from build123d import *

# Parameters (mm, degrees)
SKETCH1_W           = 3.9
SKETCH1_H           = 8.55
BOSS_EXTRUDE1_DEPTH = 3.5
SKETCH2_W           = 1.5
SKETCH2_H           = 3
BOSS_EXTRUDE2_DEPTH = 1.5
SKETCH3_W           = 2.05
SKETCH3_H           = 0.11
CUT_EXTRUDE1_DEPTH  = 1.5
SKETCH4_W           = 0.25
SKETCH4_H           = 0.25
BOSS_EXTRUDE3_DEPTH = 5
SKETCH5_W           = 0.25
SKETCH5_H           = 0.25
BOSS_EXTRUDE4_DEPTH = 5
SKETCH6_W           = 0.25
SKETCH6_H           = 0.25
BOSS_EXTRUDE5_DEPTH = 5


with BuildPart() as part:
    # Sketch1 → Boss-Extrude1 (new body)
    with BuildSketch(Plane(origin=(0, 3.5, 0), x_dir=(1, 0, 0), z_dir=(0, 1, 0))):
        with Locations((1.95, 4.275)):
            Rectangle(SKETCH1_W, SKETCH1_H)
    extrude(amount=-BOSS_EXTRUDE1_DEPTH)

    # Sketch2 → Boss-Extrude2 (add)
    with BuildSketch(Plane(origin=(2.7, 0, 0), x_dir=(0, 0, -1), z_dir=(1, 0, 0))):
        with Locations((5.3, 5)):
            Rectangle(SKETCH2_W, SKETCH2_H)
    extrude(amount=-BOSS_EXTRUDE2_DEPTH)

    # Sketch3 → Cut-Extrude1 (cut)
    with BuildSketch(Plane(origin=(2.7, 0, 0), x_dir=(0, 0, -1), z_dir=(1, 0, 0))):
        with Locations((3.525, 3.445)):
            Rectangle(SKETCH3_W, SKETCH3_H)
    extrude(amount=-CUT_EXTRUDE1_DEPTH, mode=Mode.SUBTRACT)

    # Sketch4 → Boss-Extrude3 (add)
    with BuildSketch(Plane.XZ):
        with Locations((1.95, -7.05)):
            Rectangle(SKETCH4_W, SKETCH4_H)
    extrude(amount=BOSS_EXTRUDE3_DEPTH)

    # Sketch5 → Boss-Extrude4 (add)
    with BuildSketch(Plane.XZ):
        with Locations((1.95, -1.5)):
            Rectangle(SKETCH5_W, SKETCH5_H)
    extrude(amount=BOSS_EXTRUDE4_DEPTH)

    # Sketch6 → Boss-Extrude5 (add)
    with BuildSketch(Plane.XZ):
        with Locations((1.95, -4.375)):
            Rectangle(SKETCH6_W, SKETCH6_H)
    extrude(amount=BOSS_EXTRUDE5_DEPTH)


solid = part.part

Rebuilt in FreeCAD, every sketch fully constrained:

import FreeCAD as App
import Part
import Sketcher
from FreeCAD import Vector


def add_polygon(sketch, points):
    """Adds a closed chain of lines whose ends are joined by coincident constraints."""
    first, n = sketch.GeometryCount, len(points)
    for a, b in zip(points, points[1:] + points[:1]):
        sketch.addGeometry(Part.LineSegment(App.Vector(*a, 0), App.Vector(*b, 0)), False)
    for i in range(n):
        sketch.addConstraint(Sketcher.Constraint("Coincident", first + i, 2, first + (i + 1) % n, 1))

doc = App.newDocument("Part")
params = doc.addObject("Spreadsheet::Sheet", "Params")
for row, (alias, value) in enumerate([
    ("sketch1_width", "3.9 mm"),
    ("sketch1_height", "8.55 mm"),
    ("pad1_length", "3.5 mm"),
    ("sketch2_width", "3 mm"),
    ("sketch2_height", "1.5 mm"),
    ("pad2_length", "1.5 mm"),
    ("sketch3_width", "0.11 mm"),
    ("sketch3_height", "2.05 mm"),
    ("pocket1_length", "1.5 mm"),
    ("sketch4_width", "0.25 mm"),
    ("pad3_length", "5 mm"),
    ("sketch5_width", "0.25 mm"),
    ("pad4_length", "5 mm"),
    ("sketch6_width", "0.25 mm"),
    ("pad5_length", "5 mm"),
], start=1):
    params.set(f"A{row}", alias)
    params.set(f"B{row}", "=" + value)
    params.setAlias(f"B{row}", alias)

body = doc.addObject("PartDesign::Body", "Body")

# Sketch on XZ plane
sketch1 = body.newObject("Sketcher::SketchObject", "Sketch")
sketch1.AttachmentSupport = (doc.getObject("XZ_Plane"), [""])
sketch1.MapMode = "FlatFace"
sketch1.AttachmentOffset = App.Placement(Vector(0, 0, -3.5), App.Rotation())
add_polygon(sketch1, [(0, -8.55), (0, 0), (3.9, 0), (3.9, -8.55)])  # lines 0-3
sketch1.addConstraint(Sketcher.Constraint("Vertical", 0))
sketch1.addConstraint(Sketcher.Constraint("Horizontal", 1))
sketch1.addConstraint(Sketcher.Constraint("Vertical", 2))
sketch1.addConstraint(Sketcher.Constraint("Horizontal", 3))
sketch1.addConstraint(Sketcher.Constraint("Coincident", 0, 2, -1, 1))
sketch1.addConstraint(Sketcher.Constraint("DistanceX", 1, 1, 1, 2, 3.9))
sketch1.addConstraint(Sketcher.Constraint("DistanceY", 0, 1, 0, 2, 8.55))
sketch1.setExpression("Constraints[9]", "Params.sketch1_width")
sketch1.setExpression("Constraints[10]", "Params.sketch1_height")
pad1 = body.newObject("PartDesign::Pad", "Pad")
pad1.Profile = sketch1
pad1.setExpression("Length", "Params.pad1_length")

# Sketch on YZ plane
sketch2 = body.newObject("Sketcher::SketchObject", "Sketch001")
sketch2.AttachmentSupport = (doc.getObject("YZ_Plane"), [""])
sketch2.MapMode = "FlatFace"
sketch2.AttachmentOffset = App.Placement(Vector(0, 0, 2.7), App.Rotation())
add_polygon(sketch2, [(6.5, -4.55), (3.5, -4.55), (3.5, -6.05), (6.5, -6.05)])  # lines 0-3
sketch2.addConstraint(Sketcher.Constraint("Horizontal", 0))
sketch2.addConstraint(Sketcher.Constraint("Vertical", 1))
sketch2.addConstraint(Sketcher.Constraint("Horizontal", 2))
sketch2.addConstraint(Sketcher.Constraint("Vertical", 3))
sketch2.addConstraint(Sketcher.Constraint("DistanceX", 0, 2, 0, 1, 3.0))
sketch2.addConstraint(Sketcher.Constraint("DistanceY", 1, 2, 1, 1, 1.5))
sketch2.addConstraint(Sketcher.Constraint("DistanceX", -1, 1, 0, 2, 3.5))
sketch2.addConstraint(Sketcher.Constraint("DistanceY", 0, 2, -1, 1, 4.55))
sketch2.setExpression("Constraints[8]", "Params.sketch2_width")
sketch2.setExpression("Constraints[9]", "Params.sketch2_height")
pad2 = body.newObject("PartDesign::Pad", "Pad001")
pad2.Profile = sketch2
pad2.setExpression("Length", "Params.pad2_length")
pad2.Reversed = True

# Sketch on YZ plane
sketch3 = body.newObject("Sketcher::SketchObject", "Sketch002")
sketch3.AttachmentSupport = (doc.getObject("YZ_Plane"), [""])
sketch3.MapMode = "FlatFace"
sketch3.AttachmentOffset = App.Placement(Vector(0, 0, 2.7), App.Rotation())
add_polygon(sketch3, [(3.5, -2.5), (3.39, -2.5), (3.39, -4.55), (3.5, -4.55)])  # lines 0-3
sketch3.addConstraint(Sketcher.Constraint("Horizontal", 0))
sketch3.addConstraint(Sketcher.Constraint("Vertical", 1))
sketch3.addConstraint(Sketcher.Constraint("Horizontal", 2))
sketch3.addConstraint(Sketcher.Constraint("Vertical", 3))
sketch3.addConstraint(Sketcher.Constraint("DistanceX", 0, 2, 0, 1, 0.11))
sketch3.addConstraint(Sketcher.Constraint("DistanceY", 1, 2, 1, 1, 2.05))
sketch3.addConstraint(Sketcher.Constraint("DistanceY", 0, 2, -1, 1, 2.5))
sketch3.addConstraint(Sketcher.Constraint("DistanceX", -1, 1, 2, 2, 3.5))
sketch3.setExpression("Constraints[8]", "Params.sketch3_width")
sketch3.setExpression("Constraints[9]", "Params.sketch3_height")
pocket1 = body.newObject("PartDesign::Pocket", "Pocket")
pocket1.Profile = sketch3
pocket1.setExpression("Length", "Params.pocket1_length")

# Sketch on XZ plane
sketch4 = body.newObject("Sketcher::SketchObject", "Sketch003")
sketch4.AttachmentSupport = (doc.getObject("XZ_Plane"), [""])
sketch4.MapMode = "FlatFace"
add_polygon(sketch4, [(1.825, -6.925), (1.825, -7.175), (2.075, -7.175), (2.075, -6.925)])  # lines 0-3
sketch4.addConstraint(Sketcher.Constraint("Vertical", 0))
sketch4.addConstraint(Sketcher.Constraint("Horizontal", 1))
sketch4.addConstraint(Sketcher.Constraint("Vertical", 2))
sketch4.addConstraint(Sketcher.Constraint("Horizontal", 3))
sketch4.addConstraint(Sketcher.Constraint("Equal", 3, 0))
sketch4.addConstraint(Sketcher.Constraint("DistanceX", 1, 1, 1, 2, 0.25))
sketch4.addConstraint(Sketcher.Constraint("DistanceX", -1, 1, 0, 2, 1.825))
sketch4.addConstraint(Sketcher.Constraint("DistanceY", 0, 2, -1, 1, 7.175))
sketch4.setExpression("Constraints[9]", "Params.sketch4_width")
pad3 = body.newObject("PartDesign::Pad", "Pad002")
pad3.Profile = sketch4
pad3.setExpression("Length", "Params.pad3_length")

# Sketch on XZ plane
sketch5 = body.newObject("Sketcher::SketchObject", "Sketch004")
sketch5.AttachmentSupport = (doc.getObject("XZ_Plane"), [""])
sketch5.MapMode = "FlatFace"
add_polygon(sketch5, [(1.825, -1.375), (1.825, -1.625), (2.075, -1.625), (2.075, -1.375)])  # lines 0-3
sketch5.addConstraint(Sketcher.Constraint("Vertical", 0))
sketch5.addConstraint(Sketcher.Constraint("Horizontal", 1))
sketch5.addConstraint(Sketcher.Constraint("Vertical", 2))
sketch5.addConstraint(Sketcher.Constraint("Horizontal", 3))
sketch5.addConstraint(Sketcher.Constraint("Equal", 3, 0))
sketch5.addConstraint(Sketcher.Constraint("DistanceX", 1, 1, 1, 2, 0.25))
sketch5.addConstraint(Sketcher.Constraint("DistanceX", -1, 1, 0, 2, 1.825))
sketch5.addConstraint(Sketcher.Constraint("DistanceY", 0, 2, -1, 1, 1.625))
sketch5.setExpression("Constraints[9]", "Params.sketch5_width")
pad4 = body.newObject("PartDesign::Pad", "Pad003")
pad4.Profile = sketch5
pad4.setExpression("Length", "Params.pad4_length")

# Sketch on XZ plane
sketch6 = body.newObject("Sketcher::SketchObject", "Sketch005")
sketch6.AttachmentSupport = (doc.getObject("XZ_Plane"), [""])
sketch6.MapMode = "FlatFace"
add_polygon(sketch6, [(1.825, -4.25), (1.825, -4.5), (2.075, -4.5), (2.075, -4.25)])  # lines 0-3
sketch6.addConstraint(Sketcher.Constraint("Vertical", 0))
sketch6.addConstraint(Sketcher.Constraint("Horizontal", 1))
sketch6.addConstraint(Sketcher.Constraint("Vertical", 2))
sketch6.addConstraint(Sketcher.Constraint("Horizontal", 3))
sketch6.addConstraint(Sketcher.Constraint("Equal", 3, 0))
sketch6.addConstraint(Sketcher.Constraint("DistanceX", 1, 1, 1, 2, 0.25))
sketch6.addConstraint(Sketcher.Constraint("DistanceY", 0, 2, -1, 1, 4.5))
sketch6.addConstraint(Sketcher.Constraint("DistanceX", -1, 1, 0, 2, 1.825))
sketch6.setExpression("Constraints[9]", "Params.sketch6_width")
pad5 = body.newObject("PartDesign::Pad", "Pad004")
pad5.Profile = sketch6
pad5.setExpression("Length", "Params.pad5_length")

doc.recompute()
